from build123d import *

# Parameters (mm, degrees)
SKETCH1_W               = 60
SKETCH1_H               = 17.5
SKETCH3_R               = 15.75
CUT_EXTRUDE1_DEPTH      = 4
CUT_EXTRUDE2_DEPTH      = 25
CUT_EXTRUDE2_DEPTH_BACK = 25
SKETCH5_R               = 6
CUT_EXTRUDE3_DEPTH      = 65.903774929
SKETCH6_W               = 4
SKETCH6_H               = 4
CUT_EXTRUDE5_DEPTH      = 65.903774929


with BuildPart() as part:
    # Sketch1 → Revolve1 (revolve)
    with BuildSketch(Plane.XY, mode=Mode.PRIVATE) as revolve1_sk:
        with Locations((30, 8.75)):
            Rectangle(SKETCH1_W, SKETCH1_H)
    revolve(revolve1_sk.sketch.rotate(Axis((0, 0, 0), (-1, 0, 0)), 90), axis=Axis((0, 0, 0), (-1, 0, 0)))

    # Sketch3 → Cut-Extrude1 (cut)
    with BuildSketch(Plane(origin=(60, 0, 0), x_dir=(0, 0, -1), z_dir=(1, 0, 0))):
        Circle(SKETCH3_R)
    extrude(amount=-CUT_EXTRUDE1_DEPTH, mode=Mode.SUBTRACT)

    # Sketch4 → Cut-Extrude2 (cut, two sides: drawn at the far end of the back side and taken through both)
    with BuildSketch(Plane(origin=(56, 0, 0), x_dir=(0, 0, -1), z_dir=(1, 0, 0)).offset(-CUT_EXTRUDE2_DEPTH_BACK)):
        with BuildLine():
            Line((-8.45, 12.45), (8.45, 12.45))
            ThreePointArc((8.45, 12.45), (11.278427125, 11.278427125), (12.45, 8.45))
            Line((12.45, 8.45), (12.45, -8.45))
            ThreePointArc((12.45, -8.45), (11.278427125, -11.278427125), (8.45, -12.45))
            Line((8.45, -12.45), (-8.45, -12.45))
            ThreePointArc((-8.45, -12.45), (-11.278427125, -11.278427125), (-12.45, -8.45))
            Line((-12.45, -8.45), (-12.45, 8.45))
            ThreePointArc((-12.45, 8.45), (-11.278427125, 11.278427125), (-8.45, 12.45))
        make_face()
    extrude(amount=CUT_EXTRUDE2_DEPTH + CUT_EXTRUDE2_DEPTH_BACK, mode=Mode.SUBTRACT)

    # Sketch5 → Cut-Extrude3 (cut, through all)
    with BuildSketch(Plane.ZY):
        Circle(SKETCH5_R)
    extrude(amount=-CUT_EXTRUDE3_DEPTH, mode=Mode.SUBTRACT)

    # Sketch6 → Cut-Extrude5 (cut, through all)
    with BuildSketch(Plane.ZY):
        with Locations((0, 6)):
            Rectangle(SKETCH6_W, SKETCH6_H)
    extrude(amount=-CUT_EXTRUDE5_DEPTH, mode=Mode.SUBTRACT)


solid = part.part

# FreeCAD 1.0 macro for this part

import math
import FreeCAD as App
import Part
import Sketcher
from FreeCAD import Vector


def add_polygon(sketch, points):
    """Adds a closed chain of lines whose ends are joined by coincident constraints."""
    first, n = sketch.GeometryCount, len(points)
    for a, b in zip(points, points[1:] + points[:1]):
        sketch.addGeometry(Part.LineSegment(App.Vector(*a, 0), App.Vector(*b, 0)), False)
    for i in range(n):
        sketch.addConstraint(Sketcher.Constraint("Coincident", first + i, 2, first + (i + 1) % n, 1))

doc = App.newDocument("Part")
body = doc.addObject("PartDesign::Body", "Body")

# Sketch on XY plane
sketch1 = doc.addObject("Sketcher::SketchObject", "Sketch")
body.addObject(sketch1)
sketch1.AttachmentSupport = (doc.XY_Plane, [""])
sketch1.MapMode = "FlatFace"
add_polygon(sketch1, [(0, 18), (0, 0), (60, 0), (60, 18)])  # lines 0-3
sketch1.addConstraint(Sketcher.Constraint("Vertical", 0))
sketch1.addConstraint(Sketcher.Constraint("Horizontal", 1))
sketch1.addConstraint(Sketcher.Constraint("Vertical", 2))
sketch1.addConstraint(Sketcher.Constraint("Horizontal", 3))
sketch1.addConstraint(Sketcher.Constraint("Coincident", 0, 2, -1, 1))
sketch1.addConstraint(Sketcher.Constraint("DistanceX", 1, 1, 1, 2, 60.0))
sketch1.addConstraint(Sketcher.Constraint("DistanceY", 0, 2, 0, 1, 17.5))
revolution = doc.addObject("PartDesign::Revolution", "Revolution")
body.addObject(revolution)
revolution.Profile = sketch1
revolution.ReferenceAxis = (sketch1, ["H_Axis"])
revolution.Angle = 360

# Sketch on YZ plane
sketch2 = doc.addObject("Sketcher::SketchObject", "Sketch001")
body.addObject(sketch2)
sketch2.AttachmentSupport = (doc.YZ_Plane, [""])
sketch2.MapMode = "FlatFace"
sketch2.AttachmentOffset = App.Placement(Vector(0, 0, 60), App.Rotation())
sketch2.addGeometry(Part.Circle(Vector(0, 0, 0), Vector(0, 0, 1), 16), False)
sketch2.addConstraint(Sketcher.Constraint("Coincident", 0, 3, -1, 1))
sketch2.addConstraint(Sketcher.Constraint("Diameter", 0, 31.5))
pocket1 = doc.addObject("PartDesign::Pocket", "Pocket")
body.addObject(pocket1)
pocket1.Profile = sketch2
pocket1.Length = 4

# Sketch on YZ plane
sketch3 = doc.addObject("Sketcher::SketchObject", "Sketch002")
body.addObject(sketch3)
sketch3.AttachmentSupport = (doc.YZ_Plane, [""])
sketch3.MapMode = "FlatFace"
sketch3.AttachmentOffset = App.Placement(Vector(0, 0, 56), App.Rotation())
sketch3.addGeometry(Part.LineSegment(Vector(12.4, -8.4, 0), Vector(12.4, 8.4, 0)), False)
sketch3.addGeometry(Part.ArcOfCircle(Part.Circle(Vector(8.5, 8.5, 0), Vector(0, 0, 1), 4), math.radians(0), math.radians(90)), False)
sketch3.addGeometry(Part.LineSegment(Vector(8.4, 12.4, 0), Vector(-8.4, 12.4, 0)), False)
sketch3.addGeometry(Part.ArcOfCircle(Part.Circle(Vector(-8.5, 8.5, 0), Vector(0, 0, 1), 4), math.radians(90), math.radians(180)), False)
sketch3.addGeometry(Part.LineSegment(Vector(-12.4, 8.4, 0), Vector(-12.4, -8.4, 0)), False)
sketch3.addGeometry(Part.ArcOfCircle(Part.Circle(Vector(-8.5, -8.5, 0), Vector(0, 0, 1), 4), math.radians(180), math.radians(270)), False)
sketch3.addGeometry(Part.LineSegment(Vector(-8.4, -12.4, 0), Vector(8.4, -12.4, 0)), False)
sketch3.addGeometry(Part.ArcOfCircle(Part.Circle(Vector(8.5, -8.5, 0), Vector(0, 0, 1), 4), math.radians(-90), math.radians(0)), False)
sketch3.addConstraint(Sketcher.Constraint("Tangent", 0, 2, 1, 1))
sketch3.addConstraint(Sketcher.Constraint("Tangent", 1, 2, 2, 1))
sketch3.addConstraint(Sketcher.Constraint("Tangent", 2, 2, 3, 1))
sketch3.addConstraint(Sketcher.Constraint("Tangent", 3, 2, 4, 1))
sketch3.addConstraint(Sketcher.Constraint("Tangent", 4, 2, 5, 1))
sketch3.addConstraint(Sketcher.Constraint("Tangent", 5, 2, 6, 1))
sketch3.addConstraint(Sketcher.Constraint("Tangent", 6, 2, 7, 1))
sketch3.addConstraint(Sketcher.Constraint("Tangent", 7, 2, 0, 1))
sketch3.addConstraint(Sketcher.Constraint("Vertical", 0))
sketch3.addConstraint(Sketcher.Constraint("Horizontal", 2))
sketch3.addConstraint(Sketcher.Constraint("Vertical", 4))
sketch3.addConstraint(Sketcher.Constraint("Horizontal", 6))
sketch3.addConstraint(Sketcher.Constraint("Equal", 1, 3))
sketch3.addConstraint(Sketcher.Constraint("Equal", 3, 5))
sketch3.addConstraint(Sketcher.Constraint("Equal", 5, 7))
sketch3.addConstraint(Sketcher.Constraint("Symmetric", 1, 3, 5, 3, -1, 1))
sketch3.addConstraint(Sketcher.Constraint("Equal", 6, 0))
sketch3.addConstraint(Sketcher.Constraint("Radius", 1, 4.0))
sketch3.addConstraint(Sketcher.Constraint("DistanceX", 2, 2, 2, 1, 16.9))
pocket2 = doc.addObject("PartDesign::Pocket", "Pocket001")
body.addObject(pocket2)
pocket2.Profile = sketch3
pocket2.Type = "TwoLengths"
pocket2.Length = 25
pocket2.Length2 = 25
pocket2.Reversed = True

# Sketch on YZ plane
sketch4 = doc.addObject("Sketcher::SketchObject", "Sketch003")
body.addObject(sketch4)
sketch4.AttachmentSupport = (doc.YZ_Plane, [""])
sketch4.MapMode = "FlatFace"
sketch4.addGeometry(Part.Circle(Vector(0, 0, 0), Vector(0, 0, 1), 6), False)
sketch4.addConstraint(Sketcher.Constraint("Coincident", 0, 3, -1, 1))
sketch4.addConstraint(Sketcher.Constraint("Diameter", 0, 12.0))
pocket3 = doc.addObject("PartDesign::Pocket", "Pocket002")
body.addObject(pocket3)
pocket3.Profile = sketch4
pocket3.Type = "ThroughAll"
pocket3.Reversed = True

# Sketch on YZ plane
sketch5 = doc.addObject("Sketcher::SketchObject", "Sketch004")
body.addObject(sketch5)
sketch5.AttachmentSupport = (doc.YZ_Plane, [""])
sketch5.MapMode = "FlatFace"
add_polygon(sketch5, [(8, -2), (4, -2), (4, 2), (8, 2)])  # lines 0-3
sketch5.addConstraint(Sketcher.Constraint("Horizontal", 0))
sketch5.addConstraint(Sketcher.Constraint("Vertical", 1))
sketch5.addConstraint(Sketcher.Constraint("Horizontal", 2))
sketch5.addConstraint(Sketcher.Constraint("Vertical", 3))
sketch5.addConstraint(Sketcher.Constraint("Equal", 2, 1))
sketch5.addConstraint(Sketcher.Constraint("DistanceX", 0, 2, 0, 1, 4.0))
sketch5.addConstraint(Sketcher.Constraint("DistanceX", -1, 1, 0, 2, 4.0))
sketch5.addConstraint(Sketcher.Constraint("DistanceY", 0, 2, -1, 1, 2.0))
pocket4 = doc.addObject("PartDesign::Pocket", "Pocket003")
body.addObject(pocket4)
pocket4.Profile = sketch5
pocket4.Type = "ThroughAll"
pocket4.Reversed = True

doc.recompute()
